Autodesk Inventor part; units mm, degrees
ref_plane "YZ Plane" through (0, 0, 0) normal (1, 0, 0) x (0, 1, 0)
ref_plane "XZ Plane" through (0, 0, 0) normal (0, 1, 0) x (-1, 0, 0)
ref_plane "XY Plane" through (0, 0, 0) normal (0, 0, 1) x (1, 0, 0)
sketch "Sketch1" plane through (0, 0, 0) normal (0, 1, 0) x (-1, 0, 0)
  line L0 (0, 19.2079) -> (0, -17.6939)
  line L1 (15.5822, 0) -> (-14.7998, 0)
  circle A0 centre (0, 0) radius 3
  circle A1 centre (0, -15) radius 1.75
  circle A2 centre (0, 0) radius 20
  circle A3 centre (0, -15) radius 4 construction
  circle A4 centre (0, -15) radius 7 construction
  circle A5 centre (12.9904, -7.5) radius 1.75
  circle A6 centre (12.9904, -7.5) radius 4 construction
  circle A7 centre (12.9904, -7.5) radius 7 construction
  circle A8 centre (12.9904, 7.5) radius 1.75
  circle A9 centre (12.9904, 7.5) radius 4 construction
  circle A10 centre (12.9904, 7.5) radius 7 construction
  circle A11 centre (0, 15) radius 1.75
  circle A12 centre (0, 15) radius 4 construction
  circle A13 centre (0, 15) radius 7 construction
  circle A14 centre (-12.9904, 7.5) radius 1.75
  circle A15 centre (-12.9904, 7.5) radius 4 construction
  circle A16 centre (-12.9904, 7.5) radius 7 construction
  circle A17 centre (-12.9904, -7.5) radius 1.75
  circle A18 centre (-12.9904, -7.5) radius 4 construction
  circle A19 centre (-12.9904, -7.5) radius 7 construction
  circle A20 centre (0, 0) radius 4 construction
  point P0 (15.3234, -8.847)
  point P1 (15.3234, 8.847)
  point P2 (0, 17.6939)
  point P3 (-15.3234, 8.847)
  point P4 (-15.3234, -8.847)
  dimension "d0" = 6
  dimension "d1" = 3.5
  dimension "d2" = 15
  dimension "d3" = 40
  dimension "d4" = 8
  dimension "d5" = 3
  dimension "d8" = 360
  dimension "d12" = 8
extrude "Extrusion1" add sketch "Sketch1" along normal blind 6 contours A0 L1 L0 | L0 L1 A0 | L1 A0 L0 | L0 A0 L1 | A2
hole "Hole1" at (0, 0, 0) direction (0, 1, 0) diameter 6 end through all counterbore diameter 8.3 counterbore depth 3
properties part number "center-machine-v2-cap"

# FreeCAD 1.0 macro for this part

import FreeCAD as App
import Part
import Sketcher

doc = App.newDocument("Part")
body = doc.addObject("PartDesign::Body", "Body")

# Sketch on XZ plane
sketch1 = doc.addObject("Sketcher::SketchObject", "Sketch")
body.addObject(sketch1)
sketch1.AttachmentSupport = (doc.XZ_Plane, [""])
sketch1.MapMode = "FlatFace"
sketch1.addGeometry([
    Part.Circle(App.Vector(0, 0, 0), App.Vector(0, 0, 1), 20),  # 0
    Part.Circle(App.Vector(13, -7.5, 0), App.Vector(0, 0, 1), 1.8),  # 1
    Part.Circle(App.Vector(0, -15, 0), App.Vector(0, 0, 1), 1.8),  # 2
    Part.Circle(App.Vector(-13, -7.5, 0), App.Vector(0, 0, 1), 1.8),  # 3
    Part.Circle(App.Vector(13, 7.5, 0), App.Vector(0, 0, 1), 1.8),  # 4
    Part.Circle(App.Vector(-13, 7.5, 0), App.Vector(0, 0, 1), 1.8),  # 5
    Part.Circle(App.Vector(0, 15, 0), App.Vector(0, 0, 1), 1.8),  # 6
], False)
sketch1.addConstraint([
    Sketcher.Constraint("Coincident", 0, 3, -1, 1),
    Sketcher.Constraint("Equal", 1, 2),
    Sketcher.Constraint("Equal", 2, 3),
    Sketcher.Constraint("Equal", 3, 4),
    Sketcher.Constraint("Equal", 4, 5),
    Sketcher.Constraint("Equal", 5, 6),
    Sketcher.Constraint("Symmetric", 3, 3, 4, 3, -1, 1),
    Sketcher.Constraint("Symmetric", 1, 3, 5, 3, -1, 1),
    Sketcher.Constraint("Symmetric", 2, 3, 6, 3, -1, 1),
    Sketcher.Constraint("Symmetric", 1, 3, 3, 3, -2),
    Sketcher.Constraint("PointOnObject", 2, 3, -2),
    Sketcher.Constraint("Diameter", 0, 40.0),
    Sketcher.Constraint("Diameter", 1, 3.5),
    Sketcher.Constraint("DistanceY", 2, 3, -1, 1, 15.0),
    Sketcher.Constraint("DistanceY", 1, 3, 4, 3, 15.0),
    Sketcher.Constraint("DistanceX", -1, 1, 1, 3, 12.9904),
])
pad1 = doc.addObject("PartDesign::Pad", "Pad")
body.addObject(pad1)
pad1.Profile = sketch1
pad1.Length = 6
pad1.Reversed = True

# Sketch on XZ plane
sketch2 = doc.addObject("Sketcher::SketchObject", "Sketch001")
body.addObject(sketch2)
sketch2.AttachmentSupport = (doc.XZ_Plane, [""])
sketch2.MapMode = "FlatFace"
sketch2.addGeometry(Part.Circle(App.Vector(0, 0, 0), App.Vector(0, 0, 1), 3), False)
sketch2.addConstraint([
    Sketcher.Constraint("Coincident", 0, 3, -1, 1),
    Sketcher.Constraint("Diameter", 0, 6.0),
])
doc.recompute()
hole = doc.addObject("PartDesign::Hole", "Hole")
body.addObject(hole)
hole.Profile = sketch2
hole.ThreadType = "None"
hole.Diameter = 6
hole.DepthType = "ThroughAll"
hole.HoleCutType = "Counterbore"
hole.HoleCutDiameter = 8.3
hole.HoleCutDepth = 3

doc.recompute()
